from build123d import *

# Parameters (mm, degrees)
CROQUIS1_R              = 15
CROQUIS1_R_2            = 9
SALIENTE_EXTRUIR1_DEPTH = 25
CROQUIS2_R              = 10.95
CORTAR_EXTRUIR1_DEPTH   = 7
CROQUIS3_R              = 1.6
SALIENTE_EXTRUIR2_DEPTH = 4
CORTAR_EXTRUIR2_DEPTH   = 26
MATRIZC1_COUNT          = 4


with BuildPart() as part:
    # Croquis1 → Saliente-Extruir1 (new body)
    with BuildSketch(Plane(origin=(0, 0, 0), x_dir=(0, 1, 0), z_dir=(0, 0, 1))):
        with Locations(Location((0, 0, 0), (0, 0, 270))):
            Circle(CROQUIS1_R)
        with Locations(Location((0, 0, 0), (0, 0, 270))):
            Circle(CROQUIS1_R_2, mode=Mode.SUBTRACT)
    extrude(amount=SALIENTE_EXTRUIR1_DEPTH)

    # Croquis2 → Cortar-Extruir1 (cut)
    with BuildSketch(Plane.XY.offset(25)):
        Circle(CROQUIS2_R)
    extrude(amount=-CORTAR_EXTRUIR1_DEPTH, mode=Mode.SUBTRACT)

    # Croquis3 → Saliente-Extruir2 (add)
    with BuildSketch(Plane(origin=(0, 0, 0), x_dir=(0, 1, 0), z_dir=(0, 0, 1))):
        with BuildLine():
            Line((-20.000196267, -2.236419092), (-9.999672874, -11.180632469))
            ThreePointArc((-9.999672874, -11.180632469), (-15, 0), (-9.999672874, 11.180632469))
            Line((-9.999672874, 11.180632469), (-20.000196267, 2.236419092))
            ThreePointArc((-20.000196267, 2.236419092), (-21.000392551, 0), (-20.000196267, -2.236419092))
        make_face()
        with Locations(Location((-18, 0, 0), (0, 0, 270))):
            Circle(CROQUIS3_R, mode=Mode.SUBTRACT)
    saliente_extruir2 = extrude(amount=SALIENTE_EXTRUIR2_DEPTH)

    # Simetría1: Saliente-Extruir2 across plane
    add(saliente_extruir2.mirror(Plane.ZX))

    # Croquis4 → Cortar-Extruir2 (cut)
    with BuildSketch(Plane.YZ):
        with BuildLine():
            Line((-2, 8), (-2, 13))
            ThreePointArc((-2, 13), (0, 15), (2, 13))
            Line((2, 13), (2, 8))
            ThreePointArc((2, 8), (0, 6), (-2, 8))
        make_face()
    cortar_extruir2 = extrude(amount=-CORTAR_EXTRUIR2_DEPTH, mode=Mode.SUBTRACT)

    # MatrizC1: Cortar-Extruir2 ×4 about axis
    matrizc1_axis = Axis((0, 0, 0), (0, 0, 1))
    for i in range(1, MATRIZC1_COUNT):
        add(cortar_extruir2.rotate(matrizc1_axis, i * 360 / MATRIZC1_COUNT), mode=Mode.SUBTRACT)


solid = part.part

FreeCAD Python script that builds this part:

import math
import FreeCAD as App
import Part
import Sketcher

V = App.Vector

doc = App.newDocument("Part")
body = doc.addObject("PartDesign::Body", "Body")

# Sketch on XY plane
sketch1 = doc.addObject("Sketcher::SketchObject", "Sketch")
body.addObject(sketch1)
sketch1.AttachmentSupport = (doc.XY_Plane, [""])
sketch1.MapMode = "FlatFace"
sketch1.addGeometry([
    Part.Circle(V(0, 0, 0), V(0, 0, 1), 15),
    Part.Circle(V(0, 0, 0), V(0, 0, 1), 9),
], False)
sketch1.addConstraint([
    Sketcher.Constraint("Coincident", 0, 3, -1, 1),
    Sketcher.Constraint("Coincident", 1, 3, -1, 1),
    Sketcher.Constraint("Diameter", 0, 30.0),
    Sketcher.Constraint("Diameter", 1, 18.0),
])
pad1 = doc.addObject("PartDesign::Pad", "Pad")
body.addObject(pad1)
pad1.Profile = sketch1
pad1.Length = 25

# Sketch on XY plane
sketch2 = doc.addObject("Sketcher::SketchObject", "Sketch001")
body.addObject(sketch2)
sketch2.AttachmentSupport = (doc.XY_Plane, [""])
sketch2.MapMode = "FlatFace"
sketch2.AttachmentOffset = App.Placement(V(0, 0, 25), App.Rotation())
sketch2.addGeometry(Part.Circle(V(0, 0, 0), V(0, 0, 1), 10.95), False)
sketch2.addConstraint([
    Sketcher.Constraint("Coincident", 0, 3, -1, 1),
    Sketcher.Constraint("Diameter", 0, 21.9),
])
pocket1 = doc.addObject("PartDesign::Pocket", "Pocket")
body.addObject(pocket1)
pocket1.Profile = sketch2
pocket1.Length = 7

# Sketch on XY plane
sketch3 = doc.addObject("Sketcher::SketchObject", "Sketch002")
body.addObject(sketch3)
sketch3.AttachmentSupport = (doc.XY_Plane, [""])
sketch3.MapMode = "FlatFace"
sketch3.addGeometry([
    Part.LineSegment(V(2.236419, -20.000196, 0), V(11.180632, -9.999673, 0)),  # 0
    Part.ArcOfCircle(Part.Circle(V(0, 0, 0), V(0, 0, 1), 15), math.radians(-138.191362), math.radians(-41.808638)),  # 1
    Part.LineSegment(V(-11.180632, -9.999673, 0), V(-2.236419, -20.000196, 0)),  # 2
    Part.ArcOfCircle(Part.Circle(V(0, -18, 0), V(0, 0, 1), 3.000393), math.radians(-138.191361), math.radians(-41.808639)),  # 3
    Part.Circle(V(0, -18, 0), V(0, 0, 1), 1.6),  # 4
], False)
sketch3.addConstraint([
    Sketcher.Constraint("Tangent", 0, 2, 1, 2),
    Sketcher.Constraint("Tangent", 1, 1, 2, 1),
    Sketcher.Constraint("Tangent", 2, 2, 3, 1),
    Sketcher.Constraint("Tangent", 3, 2, 0, 1),
    Sketcher.Constraint("Coincident", 1, 3, -1, 1),
    Sketcher.Constraint("Coincident", 4, 3, 3, 3),
    Sketcher.Constraint("PointOnObject", 3, 3, -2),
    Sketcher.Constraint("Radius", 1, 15.0),
    Sketcher.Constraint("Diameter", 4, 3.2),
    Sketcher.Constraint("DistanceY", 3, 3, -1, 1, 18.0),
    Sketcher.Constraint("Radius", 3, 3.000393),
])
pad2 = doc.addObject("PartDesign::Pad", "Pad001")
body.addObject(pad2)
pad2.Profile = sketch3
pad2.Length = 4
doc.recompute()

mirrored = doc.addObject("PartDesign::Mirrored", "Mirrored")
body.addObject(mirrored)
mirrored.Originals = [pad2]
mirrored.MirrorPlane = (doc.XZ_Plane, [""])
body.Tip = mirrored

# Sketch on YZ plane
sketch4 = doc.addObject("Sketcher::SketchObject", "Sketch003")
body.addObject(sketch4)
sketch4.AttachmentSupport = (doc.YZ_Plane, [""])
sketch4.MapMode = "FlatFace"
sketch4.addGeometry([
    Part.LineSegment(V(-2, 13, 0), V(-2, 8, 0)),
    Part.ArcOfCircle(Part.Circle(V(0, 8, 0), V(0, 0, 1), 2), math.radians(180), math.radians(360)),
    Part.LineSegment(V(2, 8, 0), V(2, 13, 0)),
    Part.ArcOfCircle(Part.Circle(V(0, 13, 0), V(0, 0, 1), 2), math.radians(0), math.radians(180)),
], False)
sketch4.addConstraint([
    Sketcher.Constraint("Tangent", 0, 2, 1, 1),
    Sketcher.Constraint("Tangent", 1, 2, 2, 1),
    Sketcher.Constraint("Tangent", 2, 2, 3, 1),
    Sketcher.Constraint("Tangent", 3, 2, 0, 1),
    Sketcher.Constraint("Vertical", 0),
    Sketcher.Constraint("Vertical", 2),
    Sketcher.Constraint("PointOnObject", 1, 3, -2),
    Sketcher.Constraint("Radius", 1, 2.0),
    Sketcher.Constraint("DistanceY", 0, 2, 0, 1, 5.0),
    Sketcher.Constraint("DistanceY", -1, 1, 1, 3, 8.0),
])
pocket2 = doc.addObject("PartDesign::Pocket", "Pocket001")
body.addObject(pocket2)
pocket2.Profile = sketch4
pocket2.Length = 26
doc.recompute()

polarpattern = doc.addObject("PartDesign::PolarPattern", "PolarPattern")
body.addObject(polarpattern)
polarpattern.Originals = [pocket2]
polarpattern.Axis = (doc.Z_Axis, [""])
polarpattern.Angle = 360
polarpattern.Occurrences = 4
body.Tip = polarpattern

doc.recompute()
